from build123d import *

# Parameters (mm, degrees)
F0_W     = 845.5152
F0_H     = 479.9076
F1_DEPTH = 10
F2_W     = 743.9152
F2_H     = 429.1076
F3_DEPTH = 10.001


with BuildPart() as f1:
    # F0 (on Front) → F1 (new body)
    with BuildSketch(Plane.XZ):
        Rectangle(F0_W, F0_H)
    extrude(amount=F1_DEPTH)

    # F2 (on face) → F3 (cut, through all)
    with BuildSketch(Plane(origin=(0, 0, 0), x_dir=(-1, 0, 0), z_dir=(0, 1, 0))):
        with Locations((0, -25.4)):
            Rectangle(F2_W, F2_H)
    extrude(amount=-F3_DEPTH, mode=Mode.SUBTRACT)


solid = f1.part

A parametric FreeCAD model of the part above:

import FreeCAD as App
import Part
import Sketcher

V = App.Vector
Q = App.Units.Quantity


def add_polygon(sketch, points):
    """Adds a closed chain of lines whose ends are joined by coincident constraints."""
    first, n = sketch.GeometryCount, len(points)
    for a, b in zip(points, points[1:] + points[:1]):
        sketch.addGeometry(Part.LineSegment(App.Vector(*a, 0), App.Vector(*b, 0)), False)
    for i in range(n):
        sketch.addConstraint(Sketcher.Constraint("Coincident", first + i, 2, first + (i + 1) % n, 1))

doc = App.newDocument("Part")
body = doc.addObject("PartDesign::Body", "Body")

# Sketch on XZ plane
sketch1 = body.newObject("Sketcher::SketchObject", "Sketch")
sketch1.AttachmentSupport = (doc.getObject("XZ_Plane"), [""])
sketch1.MapMode = "FlatFace"
add_polygon(sketch1, [(-423, 240), (-423, -240), (423, -240), (423, 240)])  # lines 0-3
sketch1.addConstraint([
    Sketcher.Constraint("Vertical", 0),
    Sketcher.Constraint("Horizontal", 1),
    Sketcher.Constraint("Vertical", 2),
    Sketcher.Constraint("Horizontal", 3),
    Sketcher.Constraint("Symmetric", 0, 2, 2, 2, -1, 1),
    Sketcher.Constraint("DistanceX", 1, 1, 1, 2, Q("33.288 in")),
    Sketcher.Constraint("DistanceY", 0, 2, 0, 1, Q("18.894 in")),
])
pad1 = body.newObject("PartDesign::Pad", "Pad")
pad1.Profile = sketch1
pad1.Length = 10

# Sketch on XZ plane
sketch2 = body.newObject("Sketcher::SketchObject", "Sketch001")
sketch2.AttachmentSupport = (doc.getObject("XZ_Plane"), [""])
sketch2.MapMode = "FlatFace"
add_polygon(sketch2, [(372, 189), (372, -240), (-372, -240), (-372, 189)])  # lines 0-3
sketch2.addConstraint([
    Sketcher.Constraint("Vertical", 0),
    Sketcher.Constraint("Horizontal", 1),
    Sketcher.Constraint("Vertical", 2),
    Sketcher.Constraint("Horizontal", 3),
    Sketcher.Constraint("DistanceX", 1, 2, 1, 1, Q("29.288 in")),
    Sketcher.Constraint("DistanceY", 0, 2, 0, 1, Q("16.894 in")),
    Sketcher.Constraint("DistanceX", -1, 1, 0, 2, Q("14.644 in")),
    Sketcher.Constraint("DistanceY", 0, 2, -1, 1, Q("9.447 in")),
])
pocket1 = body.newObject("PartDesign::Pocket", "Pocket")
pocket1.Profile = sketch2
pocket1.Type = "ThroughAll"
pocket1.Reversed = True

doc.recompute()
